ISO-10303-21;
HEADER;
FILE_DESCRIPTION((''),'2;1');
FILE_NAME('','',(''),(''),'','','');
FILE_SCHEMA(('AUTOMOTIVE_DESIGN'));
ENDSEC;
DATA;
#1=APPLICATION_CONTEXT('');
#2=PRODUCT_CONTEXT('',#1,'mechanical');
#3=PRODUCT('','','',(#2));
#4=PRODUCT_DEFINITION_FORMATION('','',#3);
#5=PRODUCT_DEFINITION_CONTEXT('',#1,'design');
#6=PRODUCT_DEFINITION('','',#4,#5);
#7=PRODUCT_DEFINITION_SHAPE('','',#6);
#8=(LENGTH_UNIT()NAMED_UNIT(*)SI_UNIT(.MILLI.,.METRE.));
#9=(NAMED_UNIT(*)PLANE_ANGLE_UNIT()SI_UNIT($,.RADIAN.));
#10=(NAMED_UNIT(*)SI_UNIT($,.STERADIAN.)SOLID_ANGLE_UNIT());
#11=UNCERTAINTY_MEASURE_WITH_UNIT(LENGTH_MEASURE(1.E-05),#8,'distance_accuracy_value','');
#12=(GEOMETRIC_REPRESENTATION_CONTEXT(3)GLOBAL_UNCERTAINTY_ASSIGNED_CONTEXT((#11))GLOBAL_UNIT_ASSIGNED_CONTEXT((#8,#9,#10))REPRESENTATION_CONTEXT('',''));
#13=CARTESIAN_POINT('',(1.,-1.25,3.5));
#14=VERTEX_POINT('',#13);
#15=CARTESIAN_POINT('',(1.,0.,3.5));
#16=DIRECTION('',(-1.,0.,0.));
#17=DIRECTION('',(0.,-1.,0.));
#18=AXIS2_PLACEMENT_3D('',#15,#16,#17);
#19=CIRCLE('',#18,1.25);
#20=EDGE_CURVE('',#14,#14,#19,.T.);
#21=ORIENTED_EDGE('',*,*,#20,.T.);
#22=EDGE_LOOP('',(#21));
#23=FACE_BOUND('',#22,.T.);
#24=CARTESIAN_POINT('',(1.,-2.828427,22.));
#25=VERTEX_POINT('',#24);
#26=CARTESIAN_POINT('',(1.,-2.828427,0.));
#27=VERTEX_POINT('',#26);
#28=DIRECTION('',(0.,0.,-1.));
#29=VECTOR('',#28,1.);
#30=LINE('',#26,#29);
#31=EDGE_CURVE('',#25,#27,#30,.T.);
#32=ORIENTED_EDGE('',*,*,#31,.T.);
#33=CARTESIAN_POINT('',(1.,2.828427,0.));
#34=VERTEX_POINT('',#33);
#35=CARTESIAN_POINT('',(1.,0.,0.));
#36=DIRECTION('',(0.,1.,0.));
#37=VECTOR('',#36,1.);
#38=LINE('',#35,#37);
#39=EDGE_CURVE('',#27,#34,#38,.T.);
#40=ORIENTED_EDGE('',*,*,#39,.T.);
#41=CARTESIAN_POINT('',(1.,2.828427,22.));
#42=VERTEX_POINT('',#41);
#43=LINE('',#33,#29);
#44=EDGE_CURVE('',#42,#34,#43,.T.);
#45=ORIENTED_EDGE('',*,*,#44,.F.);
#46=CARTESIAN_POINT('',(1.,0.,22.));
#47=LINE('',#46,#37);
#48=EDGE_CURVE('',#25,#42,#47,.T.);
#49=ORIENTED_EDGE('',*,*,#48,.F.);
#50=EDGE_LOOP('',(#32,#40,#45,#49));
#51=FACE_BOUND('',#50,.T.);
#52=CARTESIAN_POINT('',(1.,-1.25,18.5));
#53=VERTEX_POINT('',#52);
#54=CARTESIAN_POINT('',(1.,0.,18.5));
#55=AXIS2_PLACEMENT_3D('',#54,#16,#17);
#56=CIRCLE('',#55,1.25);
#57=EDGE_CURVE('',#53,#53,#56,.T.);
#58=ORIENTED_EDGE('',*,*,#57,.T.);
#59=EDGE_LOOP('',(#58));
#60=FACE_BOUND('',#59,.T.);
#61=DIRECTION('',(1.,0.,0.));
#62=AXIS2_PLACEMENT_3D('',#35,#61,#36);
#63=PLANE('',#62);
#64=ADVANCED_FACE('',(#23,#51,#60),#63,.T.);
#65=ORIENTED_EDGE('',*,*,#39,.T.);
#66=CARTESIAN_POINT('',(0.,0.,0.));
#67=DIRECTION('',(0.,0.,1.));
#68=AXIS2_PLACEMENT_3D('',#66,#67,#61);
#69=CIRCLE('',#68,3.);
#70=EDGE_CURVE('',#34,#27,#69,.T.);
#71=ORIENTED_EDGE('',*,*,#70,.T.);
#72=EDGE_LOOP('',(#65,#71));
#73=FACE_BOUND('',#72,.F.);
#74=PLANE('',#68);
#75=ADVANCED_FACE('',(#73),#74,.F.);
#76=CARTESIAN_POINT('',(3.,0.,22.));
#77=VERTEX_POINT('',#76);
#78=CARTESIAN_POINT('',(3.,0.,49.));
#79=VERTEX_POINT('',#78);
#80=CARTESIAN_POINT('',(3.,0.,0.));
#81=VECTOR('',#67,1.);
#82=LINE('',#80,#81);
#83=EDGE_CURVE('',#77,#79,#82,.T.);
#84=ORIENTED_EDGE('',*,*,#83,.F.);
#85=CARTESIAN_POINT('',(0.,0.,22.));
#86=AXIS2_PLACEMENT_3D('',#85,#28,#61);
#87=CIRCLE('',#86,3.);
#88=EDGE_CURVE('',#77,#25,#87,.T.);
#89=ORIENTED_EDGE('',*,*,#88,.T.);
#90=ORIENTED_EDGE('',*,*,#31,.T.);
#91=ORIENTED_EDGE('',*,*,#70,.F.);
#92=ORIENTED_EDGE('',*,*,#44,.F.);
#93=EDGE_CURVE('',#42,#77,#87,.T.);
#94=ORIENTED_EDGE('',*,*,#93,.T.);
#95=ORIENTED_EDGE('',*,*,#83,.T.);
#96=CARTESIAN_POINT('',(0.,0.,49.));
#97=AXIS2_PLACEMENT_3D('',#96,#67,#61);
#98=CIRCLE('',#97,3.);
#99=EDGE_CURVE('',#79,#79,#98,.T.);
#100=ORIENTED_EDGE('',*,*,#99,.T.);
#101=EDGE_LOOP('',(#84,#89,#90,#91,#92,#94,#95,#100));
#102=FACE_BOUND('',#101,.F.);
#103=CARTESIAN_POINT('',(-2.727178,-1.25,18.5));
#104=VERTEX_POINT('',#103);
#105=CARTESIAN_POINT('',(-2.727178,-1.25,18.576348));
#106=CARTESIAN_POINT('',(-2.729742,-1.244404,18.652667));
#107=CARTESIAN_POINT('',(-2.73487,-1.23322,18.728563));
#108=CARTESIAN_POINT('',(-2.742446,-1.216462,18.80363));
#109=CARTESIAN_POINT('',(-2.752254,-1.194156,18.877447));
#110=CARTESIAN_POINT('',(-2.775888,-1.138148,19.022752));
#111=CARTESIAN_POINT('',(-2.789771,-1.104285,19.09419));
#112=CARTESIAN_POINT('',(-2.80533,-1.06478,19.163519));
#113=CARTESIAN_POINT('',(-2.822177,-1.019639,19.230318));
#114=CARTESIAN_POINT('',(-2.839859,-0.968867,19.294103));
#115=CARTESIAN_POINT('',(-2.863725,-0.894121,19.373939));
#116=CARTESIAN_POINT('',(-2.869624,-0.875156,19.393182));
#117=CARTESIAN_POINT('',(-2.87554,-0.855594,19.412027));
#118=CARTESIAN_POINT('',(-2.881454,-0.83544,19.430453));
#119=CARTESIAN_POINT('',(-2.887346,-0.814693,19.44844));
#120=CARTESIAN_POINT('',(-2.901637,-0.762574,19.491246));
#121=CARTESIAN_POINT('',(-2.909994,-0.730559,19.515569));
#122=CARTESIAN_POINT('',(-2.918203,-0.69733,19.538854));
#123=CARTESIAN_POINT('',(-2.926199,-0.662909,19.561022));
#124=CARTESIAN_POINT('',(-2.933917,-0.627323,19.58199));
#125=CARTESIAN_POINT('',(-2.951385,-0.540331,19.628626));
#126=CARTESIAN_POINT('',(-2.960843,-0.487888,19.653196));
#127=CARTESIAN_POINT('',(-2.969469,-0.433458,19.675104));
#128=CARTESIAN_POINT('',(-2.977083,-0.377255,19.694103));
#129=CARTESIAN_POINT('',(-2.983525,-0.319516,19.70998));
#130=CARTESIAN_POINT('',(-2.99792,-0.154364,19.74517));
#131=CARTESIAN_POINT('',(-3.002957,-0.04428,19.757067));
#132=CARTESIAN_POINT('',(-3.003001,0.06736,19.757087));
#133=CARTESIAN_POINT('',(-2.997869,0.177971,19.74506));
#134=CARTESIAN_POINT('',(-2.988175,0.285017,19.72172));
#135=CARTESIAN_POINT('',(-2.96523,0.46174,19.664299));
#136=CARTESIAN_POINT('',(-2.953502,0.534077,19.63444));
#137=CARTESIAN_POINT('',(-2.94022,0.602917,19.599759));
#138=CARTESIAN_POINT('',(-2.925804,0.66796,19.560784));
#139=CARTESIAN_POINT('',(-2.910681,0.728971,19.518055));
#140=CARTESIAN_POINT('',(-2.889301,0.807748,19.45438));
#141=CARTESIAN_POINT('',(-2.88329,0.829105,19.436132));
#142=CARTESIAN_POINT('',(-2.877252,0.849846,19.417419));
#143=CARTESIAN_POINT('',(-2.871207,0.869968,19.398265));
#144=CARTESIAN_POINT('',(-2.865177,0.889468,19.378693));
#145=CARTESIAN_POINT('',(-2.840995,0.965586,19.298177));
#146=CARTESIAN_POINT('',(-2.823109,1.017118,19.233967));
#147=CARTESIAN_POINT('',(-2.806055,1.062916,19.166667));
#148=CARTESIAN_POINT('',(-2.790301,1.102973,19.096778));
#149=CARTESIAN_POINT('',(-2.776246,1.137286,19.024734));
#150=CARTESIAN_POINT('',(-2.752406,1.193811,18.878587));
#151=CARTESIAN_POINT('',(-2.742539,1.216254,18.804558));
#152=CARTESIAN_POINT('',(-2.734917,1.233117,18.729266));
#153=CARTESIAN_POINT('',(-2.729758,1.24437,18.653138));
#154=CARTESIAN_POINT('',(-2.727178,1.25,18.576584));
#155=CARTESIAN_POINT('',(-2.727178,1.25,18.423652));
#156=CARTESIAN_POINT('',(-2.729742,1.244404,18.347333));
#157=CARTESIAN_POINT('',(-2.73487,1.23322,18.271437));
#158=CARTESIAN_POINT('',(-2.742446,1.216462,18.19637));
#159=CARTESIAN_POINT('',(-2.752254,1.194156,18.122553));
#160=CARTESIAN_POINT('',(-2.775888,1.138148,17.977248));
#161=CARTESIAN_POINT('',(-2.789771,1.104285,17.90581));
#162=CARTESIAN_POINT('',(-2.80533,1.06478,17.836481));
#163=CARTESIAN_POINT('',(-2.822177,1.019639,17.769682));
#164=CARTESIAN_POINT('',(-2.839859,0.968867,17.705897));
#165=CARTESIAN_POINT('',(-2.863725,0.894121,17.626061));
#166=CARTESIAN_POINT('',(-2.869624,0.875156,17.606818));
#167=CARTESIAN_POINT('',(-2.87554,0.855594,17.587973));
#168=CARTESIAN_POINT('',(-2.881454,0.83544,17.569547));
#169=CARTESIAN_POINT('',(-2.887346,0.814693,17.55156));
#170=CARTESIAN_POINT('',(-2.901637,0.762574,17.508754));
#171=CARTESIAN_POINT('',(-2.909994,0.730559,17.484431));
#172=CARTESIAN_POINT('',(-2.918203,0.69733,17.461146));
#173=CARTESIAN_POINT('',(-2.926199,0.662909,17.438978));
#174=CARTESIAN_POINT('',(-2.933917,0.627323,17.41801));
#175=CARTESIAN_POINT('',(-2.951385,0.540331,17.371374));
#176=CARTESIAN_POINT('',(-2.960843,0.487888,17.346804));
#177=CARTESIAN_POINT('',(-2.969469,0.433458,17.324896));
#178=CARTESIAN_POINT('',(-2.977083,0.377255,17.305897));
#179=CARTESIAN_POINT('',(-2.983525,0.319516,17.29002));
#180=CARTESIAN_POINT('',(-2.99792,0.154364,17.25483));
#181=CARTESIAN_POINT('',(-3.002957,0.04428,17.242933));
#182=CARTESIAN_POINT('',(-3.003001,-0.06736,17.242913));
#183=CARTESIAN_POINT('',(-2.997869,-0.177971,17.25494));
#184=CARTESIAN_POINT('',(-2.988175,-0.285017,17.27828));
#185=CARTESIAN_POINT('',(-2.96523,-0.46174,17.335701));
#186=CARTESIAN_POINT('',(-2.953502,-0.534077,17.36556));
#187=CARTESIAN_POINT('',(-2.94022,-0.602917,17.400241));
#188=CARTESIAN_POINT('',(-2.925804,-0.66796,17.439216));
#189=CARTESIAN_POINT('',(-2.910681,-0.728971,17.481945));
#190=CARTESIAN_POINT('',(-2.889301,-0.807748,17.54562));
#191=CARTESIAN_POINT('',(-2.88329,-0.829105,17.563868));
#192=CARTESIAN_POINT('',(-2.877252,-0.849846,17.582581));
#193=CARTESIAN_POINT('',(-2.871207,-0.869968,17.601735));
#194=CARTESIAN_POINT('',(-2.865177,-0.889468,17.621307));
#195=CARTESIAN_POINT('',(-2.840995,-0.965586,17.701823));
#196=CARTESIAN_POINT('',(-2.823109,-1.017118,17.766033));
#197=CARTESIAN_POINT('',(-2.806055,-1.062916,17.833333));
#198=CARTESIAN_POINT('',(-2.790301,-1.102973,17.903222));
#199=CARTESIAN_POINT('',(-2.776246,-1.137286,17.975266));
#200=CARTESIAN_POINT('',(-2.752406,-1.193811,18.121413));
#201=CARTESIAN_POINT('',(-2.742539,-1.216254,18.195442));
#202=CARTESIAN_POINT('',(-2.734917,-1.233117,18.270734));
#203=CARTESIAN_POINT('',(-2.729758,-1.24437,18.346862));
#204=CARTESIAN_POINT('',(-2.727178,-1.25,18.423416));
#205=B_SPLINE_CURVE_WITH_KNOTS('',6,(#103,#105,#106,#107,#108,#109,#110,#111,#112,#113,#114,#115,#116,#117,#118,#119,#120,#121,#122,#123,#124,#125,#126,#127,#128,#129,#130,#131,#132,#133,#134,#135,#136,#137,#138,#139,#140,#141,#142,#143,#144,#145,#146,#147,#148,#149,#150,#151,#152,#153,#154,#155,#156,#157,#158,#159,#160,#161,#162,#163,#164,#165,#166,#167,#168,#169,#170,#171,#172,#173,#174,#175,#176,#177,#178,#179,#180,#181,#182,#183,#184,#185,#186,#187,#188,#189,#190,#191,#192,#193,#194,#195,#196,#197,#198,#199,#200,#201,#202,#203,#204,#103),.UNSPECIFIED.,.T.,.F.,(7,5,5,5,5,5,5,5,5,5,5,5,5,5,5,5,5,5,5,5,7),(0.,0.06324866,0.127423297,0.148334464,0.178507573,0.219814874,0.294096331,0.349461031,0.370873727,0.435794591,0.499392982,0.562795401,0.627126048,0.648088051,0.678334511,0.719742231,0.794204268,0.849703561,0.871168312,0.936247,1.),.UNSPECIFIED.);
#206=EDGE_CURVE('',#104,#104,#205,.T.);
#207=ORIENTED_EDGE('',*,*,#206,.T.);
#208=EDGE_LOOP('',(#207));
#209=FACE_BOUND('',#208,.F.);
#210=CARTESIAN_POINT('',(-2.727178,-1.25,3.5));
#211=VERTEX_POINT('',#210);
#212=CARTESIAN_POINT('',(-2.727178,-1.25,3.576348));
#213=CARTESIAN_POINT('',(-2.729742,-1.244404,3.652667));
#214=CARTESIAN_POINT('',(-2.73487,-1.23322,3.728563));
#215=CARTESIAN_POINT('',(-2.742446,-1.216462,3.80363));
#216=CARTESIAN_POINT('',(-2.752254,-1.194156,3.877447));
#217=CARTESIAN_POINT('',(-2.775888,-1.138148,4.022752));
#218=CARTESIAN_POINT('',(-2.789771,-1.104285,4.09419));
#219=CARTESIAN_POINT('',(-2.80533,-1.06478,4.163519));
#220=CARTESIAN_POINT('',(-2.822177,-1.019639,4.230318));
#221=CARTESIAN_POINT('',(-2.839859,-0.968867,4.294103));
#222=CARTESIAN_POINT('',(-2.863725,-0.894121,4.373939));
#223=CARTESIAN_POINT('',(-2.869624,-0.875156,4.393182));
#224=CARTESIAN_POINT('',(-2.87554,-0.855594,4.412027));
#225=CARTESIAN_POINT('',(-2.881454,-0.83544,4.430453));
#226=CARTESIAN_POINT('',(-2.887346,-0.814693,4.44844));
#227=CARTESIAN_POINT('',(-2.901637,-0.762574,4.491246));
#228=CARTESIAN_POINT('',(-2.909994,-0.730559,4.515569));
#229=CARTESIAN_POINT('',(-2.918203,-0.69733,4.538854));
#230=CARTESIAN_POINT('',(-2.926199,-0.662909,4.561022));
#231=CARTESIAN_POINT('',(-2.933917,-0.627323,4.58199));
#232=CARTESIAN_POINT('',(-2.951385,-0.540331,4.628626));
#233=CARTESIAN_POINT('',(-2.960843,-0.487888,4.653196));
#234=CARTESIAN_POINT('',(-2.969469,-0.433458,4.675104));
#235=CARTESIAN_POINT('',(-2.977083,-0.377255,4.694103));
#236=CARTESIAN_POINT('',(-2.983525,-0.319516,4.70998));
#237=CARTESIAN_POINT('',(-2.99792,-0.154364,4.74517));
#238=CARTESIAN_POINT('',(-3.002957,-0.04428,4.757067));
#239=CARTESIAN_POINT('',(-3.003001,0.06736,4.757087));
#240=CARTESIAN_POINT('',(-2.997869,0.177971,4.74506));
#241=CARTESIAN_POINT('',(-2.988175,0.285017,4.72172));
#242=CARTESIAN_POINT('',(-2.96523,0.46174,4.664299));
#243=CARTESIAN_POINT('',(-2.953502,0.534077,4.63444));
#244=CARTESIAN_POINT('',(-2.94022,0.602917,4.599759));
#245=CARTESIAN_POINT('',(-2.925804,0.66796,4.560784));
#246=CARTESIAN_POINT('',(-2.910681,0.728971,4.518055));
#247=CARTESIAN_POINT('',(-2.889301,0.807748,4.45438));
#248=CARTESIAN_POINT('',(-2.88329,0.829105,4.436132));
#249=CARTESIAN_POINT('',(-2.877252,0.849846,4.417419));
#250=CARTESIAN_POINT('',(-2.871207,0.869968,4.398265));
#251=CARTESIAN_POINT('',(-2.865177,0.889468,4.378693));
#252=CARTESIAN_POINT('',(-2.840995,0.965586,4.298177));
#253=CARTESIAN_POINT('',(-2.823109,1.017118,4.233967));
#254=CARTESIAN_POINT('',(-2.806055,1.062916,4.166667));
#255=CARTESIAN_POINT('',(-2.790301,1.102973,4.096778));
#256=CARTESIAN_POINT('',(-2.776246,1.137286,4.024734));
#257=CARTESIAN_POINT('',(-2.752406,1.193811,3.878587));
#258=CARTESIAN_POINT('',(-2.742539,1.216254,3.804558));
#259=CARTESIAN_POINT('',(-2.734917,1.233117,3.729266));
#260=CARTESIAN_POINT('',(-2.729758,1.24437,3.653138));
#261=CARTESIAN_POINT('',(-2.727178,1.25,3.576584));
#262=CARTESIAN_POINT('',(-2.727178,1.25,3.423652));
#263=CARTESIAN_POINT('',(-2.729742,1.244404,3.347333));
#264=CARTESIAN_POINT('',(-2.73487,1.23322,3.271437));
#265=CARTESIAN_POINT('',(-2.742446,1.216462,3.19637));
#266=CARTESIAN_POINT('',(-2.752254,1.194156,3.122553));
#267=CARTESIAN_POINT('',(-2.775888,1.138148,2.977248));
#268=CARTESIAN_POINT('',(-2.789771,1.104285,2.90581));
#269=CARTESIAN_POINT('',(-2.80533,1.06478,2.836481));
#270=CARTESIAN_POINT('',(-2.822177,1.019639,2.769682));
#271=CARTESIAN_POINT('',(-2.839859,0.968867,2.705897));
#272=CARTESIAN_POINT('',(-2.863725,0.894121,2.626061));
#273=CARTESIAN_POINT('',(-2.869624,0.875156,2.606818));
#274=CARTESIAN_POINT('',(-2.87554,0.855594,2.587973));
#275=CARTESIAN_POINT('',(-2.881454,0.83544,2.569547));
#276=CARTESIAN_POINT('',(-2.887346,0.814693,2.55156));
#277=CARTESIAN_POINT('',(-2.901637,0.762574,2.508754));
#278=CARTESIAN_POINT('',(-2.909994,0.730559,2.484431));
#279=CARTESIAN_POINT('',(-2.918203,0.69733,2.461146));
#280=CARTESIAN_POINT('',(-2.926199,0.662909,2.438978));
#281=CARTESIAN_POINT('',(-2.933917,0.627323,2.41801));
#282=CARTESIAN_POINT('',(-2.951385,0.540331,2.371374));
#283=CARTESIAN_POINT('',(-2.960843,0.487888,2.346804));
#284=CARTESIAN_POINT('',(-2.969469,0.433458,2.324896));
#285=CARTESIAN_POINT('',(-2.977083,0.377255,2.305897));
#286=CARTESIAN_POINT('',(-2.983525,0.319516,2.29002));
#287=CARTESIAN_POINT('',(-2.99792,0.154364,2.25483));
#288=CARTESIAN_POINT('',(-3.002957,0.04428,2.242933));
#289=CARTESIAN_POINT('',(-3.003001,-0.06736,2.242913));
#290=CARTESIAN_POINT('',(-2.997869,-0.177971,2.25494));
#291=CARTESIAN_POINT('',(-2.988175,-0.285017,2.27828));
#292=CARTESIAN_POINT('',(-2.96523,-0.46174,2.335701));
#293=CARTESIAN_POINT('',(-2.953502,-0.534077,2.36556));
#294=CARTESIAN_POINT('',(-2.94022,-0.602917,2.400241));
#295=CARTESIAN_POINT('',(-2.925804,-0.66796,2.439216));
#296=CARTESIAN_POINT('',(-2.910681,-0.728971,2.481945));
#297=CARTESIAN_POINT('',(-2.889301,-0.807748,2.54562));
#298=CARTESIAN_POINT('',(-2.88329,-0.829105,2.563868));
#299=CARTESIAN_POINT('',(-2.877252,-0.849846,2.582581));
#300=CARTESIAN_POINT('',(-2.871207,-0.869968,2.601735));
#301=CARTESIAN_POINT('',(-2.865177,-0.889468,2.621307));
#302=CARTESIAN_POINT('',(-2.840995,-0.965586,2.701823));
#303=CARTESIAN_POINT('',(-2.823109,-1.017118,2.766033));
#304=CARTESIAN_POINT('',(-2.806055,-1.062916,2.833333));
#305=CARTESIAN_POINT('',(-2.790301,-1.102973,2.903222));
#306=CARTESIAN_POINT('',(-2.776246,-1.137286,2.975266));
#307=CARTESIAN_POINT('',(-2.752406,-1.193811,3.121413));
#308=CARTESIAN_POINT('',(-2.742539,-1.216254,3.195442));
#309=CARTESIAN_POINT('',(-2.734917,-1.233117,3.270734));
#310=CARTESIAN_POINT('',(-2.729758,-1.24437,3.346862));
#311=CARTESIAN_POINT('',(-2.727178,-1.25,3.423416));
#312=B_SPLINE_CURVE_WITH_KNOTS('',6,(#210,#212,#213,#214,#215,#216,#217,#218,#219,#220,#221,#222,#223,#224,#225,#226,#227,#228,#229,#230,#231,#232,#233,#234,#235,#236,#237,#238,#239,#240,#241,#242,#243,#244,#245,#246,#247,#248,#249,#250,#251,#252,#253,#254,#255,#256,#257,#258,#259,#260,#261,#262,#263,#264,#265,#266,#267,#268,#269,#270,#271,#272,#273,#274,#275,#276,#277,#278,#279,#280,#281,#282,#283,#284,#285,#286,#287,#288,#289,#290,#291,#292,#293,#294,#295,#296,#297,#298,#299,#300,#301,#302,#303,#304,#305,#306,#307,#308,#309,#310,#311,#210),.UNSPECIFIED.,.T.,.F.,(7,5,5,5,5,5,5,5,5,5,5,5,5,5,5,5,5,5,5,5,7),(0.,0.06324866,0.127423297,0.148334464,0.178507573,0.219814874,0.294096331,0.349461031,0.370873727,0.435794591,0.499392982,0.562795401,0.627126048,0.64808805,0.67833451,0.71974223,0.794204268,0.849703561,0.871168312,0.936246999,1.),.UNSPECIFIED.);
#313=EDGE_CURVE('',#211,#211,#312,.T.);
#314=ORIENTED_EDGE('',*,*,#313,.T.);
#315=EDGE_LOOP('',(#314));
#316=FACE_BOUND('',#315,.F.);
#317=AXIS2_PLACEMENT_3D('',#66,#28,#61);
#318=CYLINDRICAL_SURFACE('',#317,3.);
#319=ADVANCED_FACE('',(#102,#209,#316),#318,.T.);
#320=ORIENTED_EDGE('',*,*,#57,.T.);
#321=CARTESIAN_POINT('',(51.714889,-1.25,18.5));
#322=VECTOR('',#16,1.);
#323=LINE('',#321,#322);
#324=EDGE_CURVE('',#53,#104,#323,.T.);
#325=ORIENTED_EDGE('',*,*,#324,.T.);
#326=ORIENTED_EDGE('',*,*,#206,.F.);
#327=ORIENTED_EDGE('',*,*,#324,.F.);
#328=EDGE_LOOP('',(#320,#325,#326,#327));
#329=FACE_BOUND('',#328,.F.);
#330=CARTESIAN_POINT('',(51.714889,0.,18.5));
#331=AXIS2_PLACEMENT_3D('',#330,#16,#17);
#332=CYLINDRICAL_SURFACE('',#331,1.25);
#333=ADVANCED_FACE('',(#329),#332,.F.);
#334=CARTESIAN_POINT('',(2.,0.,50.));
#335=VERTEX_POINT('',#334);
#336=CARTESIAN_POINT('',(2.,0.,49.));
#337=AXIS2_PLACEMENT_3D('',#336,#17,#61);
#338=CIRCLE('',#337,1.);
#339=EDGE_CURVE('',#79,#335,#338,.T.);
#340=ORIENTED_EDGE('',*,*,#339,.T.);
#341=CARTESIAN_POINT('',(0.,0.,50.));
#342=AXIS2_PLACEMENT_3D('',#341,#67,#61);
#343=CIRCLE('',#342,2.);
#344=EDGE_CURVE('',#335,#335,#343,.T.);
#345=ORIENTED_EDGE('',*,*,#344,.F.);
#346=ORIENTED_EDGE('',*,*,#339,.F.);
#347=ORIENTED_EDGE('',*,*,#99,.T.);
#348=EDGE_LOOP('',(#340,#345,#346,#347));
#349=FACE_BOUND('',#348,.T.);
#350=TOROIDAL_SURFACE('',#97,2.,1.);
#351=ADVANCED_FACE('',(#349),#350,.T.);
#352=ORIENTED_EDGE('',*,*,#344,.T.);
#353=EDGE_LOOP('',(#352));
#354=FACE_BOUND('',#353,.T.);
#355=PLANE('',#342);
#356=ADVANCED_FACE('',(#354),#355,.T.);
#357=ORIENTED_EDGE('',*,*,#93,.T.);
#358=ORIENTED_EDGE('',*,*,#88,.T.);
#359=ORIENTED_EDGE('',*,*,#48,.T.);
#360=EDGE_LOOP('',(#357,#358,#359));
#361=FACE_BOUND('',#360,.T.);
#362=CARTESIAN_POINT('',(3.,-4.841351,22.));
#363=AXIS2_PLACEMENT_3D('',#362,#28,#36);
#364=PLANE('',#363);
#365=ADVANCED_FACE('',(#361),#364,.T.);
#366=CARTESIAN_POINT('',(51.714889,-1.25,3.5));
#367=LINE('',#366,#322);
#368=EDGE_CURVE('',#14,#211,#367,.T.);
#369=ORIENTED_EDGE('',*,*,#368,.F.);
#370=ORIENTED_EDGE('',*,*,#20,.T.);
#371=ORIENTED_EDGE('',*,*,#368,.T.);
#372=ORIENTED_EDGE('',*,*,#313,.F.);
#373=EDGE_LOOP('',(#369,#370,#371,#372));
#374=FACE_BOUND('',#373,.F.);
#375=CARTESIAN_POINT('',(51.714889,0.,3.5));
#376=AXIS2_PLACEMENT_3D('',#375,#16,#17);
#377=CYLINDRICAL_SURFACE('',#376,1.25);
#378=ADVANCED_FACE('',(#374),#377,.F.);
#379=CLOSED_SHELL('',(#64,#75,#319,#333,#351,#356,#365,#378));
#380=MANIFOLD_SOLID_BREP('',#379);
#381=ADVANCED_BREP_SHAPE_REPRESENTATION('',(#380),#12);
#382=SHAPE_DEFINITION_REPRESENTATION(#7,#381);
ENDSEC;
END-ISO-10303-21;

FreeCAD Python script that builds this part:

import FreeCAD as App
import Part
import Sketcher
from FreeCAD import Vector
Q = App.Units.Quantity


def edges_at(feature, points):
    """Names of the edges that pass closest to the given points."""
    edges = feature.Shape.Edges
    near = lambda p: min(range(len(edges)), key=lambda i: edges[i].distToShape(Part.Vertex(*p))[0])
    return sorted({f"Edge{near(p) + 1}" for p in points})

doc = App.newDocument("Part")
body = doc.addObject("PartDesign::Body", "Body")

# Sketch on XY plane
sketch1 = doc.addObject("Sketcher::SketchObject", "Sketch")
body.addObject(sketch1)
sketch1.AttachmentSupport = (doc.XY_Plane, [""])
sketch1.MapMode = "FlatFace"
sketch1.addGeometry(Part.Circle(Vector(0, 0, 0), Vector(0, 0, 1), 3), False)
sketch1.addConstraint([
    Sketcher.Constraint("Coincident", 0, 3, -1, 1),
    Sketcher.Constraint("Diameter", 0, Q("6 mm")),
])
pad1 = doc.addObject("PartDesign::Pad", "Pad")
body.addObject(pad1)
pad1.Profile = sketch1
pad1.Length = 50
doc.recompute()

fillet = doc.addObject("PartDesign::Fillet", "Fillet")
body.addObject(fillet)
fillet.Base = (pad1, edges_at(pad1, [(-3, 0, 50)]))
fillet.Radius = 1

# Sketch on YZ plane
sketch2 = doc.addObject("Sketcher::SketchObject", "Sketch001")
body.addObject(sketch2)
sketch2.AttachmentSupport = (doc.YZ_Plane, [""])
sketch2.MapMode = "FlatFace"
sketch2.AttachmentOffset = App.Placement(Vector(0, 0, 3), App.Rotation())
sketch2.addGeometry([
    Part.LineSegment(Vector(-4.841351, 22, 0), Vector(-4.841351, -22, 0)),
    Part.LineSegment(Vector(-4.841351, -22, 0), Vector(4.841351, -22, 0)),
    Part.LineSegment(Vector(4.841351, -22, 0), Vector(4.841351, 22, 0)),
    Part.LineSegment(Vector(4.841351, 22, 0), Vector(-4.841351, 22, 0)),
], False)
sketch2.addConstraint([
    Sketcher.Constraint("Coincident", 0, 2, 1, 1),
    Sketcher.Constraint("Coincident", 1, 2, 2, 1),
    Sketcher.Constraint("Coincident", 2, 2, 3, 1),
    Sketcher.Constraint("Coincident", 3, 2, 0, 1),
    Sketcher.Constraint("Vertical", 0),
    Sketcher.Constraint("Horizontal", 1),
    Sketcher.Constraint("Vertical", 2),
    Sketcher.Constraint("Horizontal", 3),
    Sketcher.Constraint("Symmetric", 0, 2, 2, 2, -1, 1),
    Sketcher.Constraint("DistanceY", 0, 2, 0, 1, Q("44 mm")),
    Sketcher.Constraint("DistanceX", 1, 1, 1, 2, Q("9.682702 mm")),
])
pocket1 = doc.addObject("PartDesign::Pocket", "Pocket")
body.addObject(pocket1)
pocket1.Profile = sketch2
pocket1.Length = 2

# Sketch on YZ plane
sketch3 = doc.addObject("Sketcher::SketchObject", "Sketch002")
body.addObject(sketch3)
sketch3.AttachmentSupport = (doc.YZ_Plane, [""])
sketch3.MapMode = "FlatFace"
sketch3.AttachmentOffset = App.Placement(Vector(0, 0, 1), App.Rotation())
sketch3.addGeometry([
    Part.Circle(Vector(0, 3.5, 0), Vector(0, 0, 1), 1.25),
    Part.Circle(Vector(0, 18.5, 0), Vector(0, 0, 1), 1.25),
], False)
sketch3.addConstraint([
    Sketcher.Constraint("Equal", 0, 1),
    Sketcher.Constraint("PointOnObject", 0, 3, -2),
    Sketcher.Constraint("PointOnObject", 1, 3, -2),
    Sketcher.Constraint("Diameter", 0, Q("2.5 mm")),
    Sketcher.Constraint("DistanceY", 0, 3, 1, 3, Q("15 mm")),
    Sketcher.Constraint("DistanceY", -1, 1, 0, 3, Q("3.5 mm")),
])
doc.recompute()
hole = doc.addObject("PartDesign::Hole", "Hole")
body.addObject(hole)
hole.Profile = sketch3
hole.ThreadType = "None"
hole.Diameter = 2.5
hole.DepthType = "ThroughAll"

doc.recompute()
